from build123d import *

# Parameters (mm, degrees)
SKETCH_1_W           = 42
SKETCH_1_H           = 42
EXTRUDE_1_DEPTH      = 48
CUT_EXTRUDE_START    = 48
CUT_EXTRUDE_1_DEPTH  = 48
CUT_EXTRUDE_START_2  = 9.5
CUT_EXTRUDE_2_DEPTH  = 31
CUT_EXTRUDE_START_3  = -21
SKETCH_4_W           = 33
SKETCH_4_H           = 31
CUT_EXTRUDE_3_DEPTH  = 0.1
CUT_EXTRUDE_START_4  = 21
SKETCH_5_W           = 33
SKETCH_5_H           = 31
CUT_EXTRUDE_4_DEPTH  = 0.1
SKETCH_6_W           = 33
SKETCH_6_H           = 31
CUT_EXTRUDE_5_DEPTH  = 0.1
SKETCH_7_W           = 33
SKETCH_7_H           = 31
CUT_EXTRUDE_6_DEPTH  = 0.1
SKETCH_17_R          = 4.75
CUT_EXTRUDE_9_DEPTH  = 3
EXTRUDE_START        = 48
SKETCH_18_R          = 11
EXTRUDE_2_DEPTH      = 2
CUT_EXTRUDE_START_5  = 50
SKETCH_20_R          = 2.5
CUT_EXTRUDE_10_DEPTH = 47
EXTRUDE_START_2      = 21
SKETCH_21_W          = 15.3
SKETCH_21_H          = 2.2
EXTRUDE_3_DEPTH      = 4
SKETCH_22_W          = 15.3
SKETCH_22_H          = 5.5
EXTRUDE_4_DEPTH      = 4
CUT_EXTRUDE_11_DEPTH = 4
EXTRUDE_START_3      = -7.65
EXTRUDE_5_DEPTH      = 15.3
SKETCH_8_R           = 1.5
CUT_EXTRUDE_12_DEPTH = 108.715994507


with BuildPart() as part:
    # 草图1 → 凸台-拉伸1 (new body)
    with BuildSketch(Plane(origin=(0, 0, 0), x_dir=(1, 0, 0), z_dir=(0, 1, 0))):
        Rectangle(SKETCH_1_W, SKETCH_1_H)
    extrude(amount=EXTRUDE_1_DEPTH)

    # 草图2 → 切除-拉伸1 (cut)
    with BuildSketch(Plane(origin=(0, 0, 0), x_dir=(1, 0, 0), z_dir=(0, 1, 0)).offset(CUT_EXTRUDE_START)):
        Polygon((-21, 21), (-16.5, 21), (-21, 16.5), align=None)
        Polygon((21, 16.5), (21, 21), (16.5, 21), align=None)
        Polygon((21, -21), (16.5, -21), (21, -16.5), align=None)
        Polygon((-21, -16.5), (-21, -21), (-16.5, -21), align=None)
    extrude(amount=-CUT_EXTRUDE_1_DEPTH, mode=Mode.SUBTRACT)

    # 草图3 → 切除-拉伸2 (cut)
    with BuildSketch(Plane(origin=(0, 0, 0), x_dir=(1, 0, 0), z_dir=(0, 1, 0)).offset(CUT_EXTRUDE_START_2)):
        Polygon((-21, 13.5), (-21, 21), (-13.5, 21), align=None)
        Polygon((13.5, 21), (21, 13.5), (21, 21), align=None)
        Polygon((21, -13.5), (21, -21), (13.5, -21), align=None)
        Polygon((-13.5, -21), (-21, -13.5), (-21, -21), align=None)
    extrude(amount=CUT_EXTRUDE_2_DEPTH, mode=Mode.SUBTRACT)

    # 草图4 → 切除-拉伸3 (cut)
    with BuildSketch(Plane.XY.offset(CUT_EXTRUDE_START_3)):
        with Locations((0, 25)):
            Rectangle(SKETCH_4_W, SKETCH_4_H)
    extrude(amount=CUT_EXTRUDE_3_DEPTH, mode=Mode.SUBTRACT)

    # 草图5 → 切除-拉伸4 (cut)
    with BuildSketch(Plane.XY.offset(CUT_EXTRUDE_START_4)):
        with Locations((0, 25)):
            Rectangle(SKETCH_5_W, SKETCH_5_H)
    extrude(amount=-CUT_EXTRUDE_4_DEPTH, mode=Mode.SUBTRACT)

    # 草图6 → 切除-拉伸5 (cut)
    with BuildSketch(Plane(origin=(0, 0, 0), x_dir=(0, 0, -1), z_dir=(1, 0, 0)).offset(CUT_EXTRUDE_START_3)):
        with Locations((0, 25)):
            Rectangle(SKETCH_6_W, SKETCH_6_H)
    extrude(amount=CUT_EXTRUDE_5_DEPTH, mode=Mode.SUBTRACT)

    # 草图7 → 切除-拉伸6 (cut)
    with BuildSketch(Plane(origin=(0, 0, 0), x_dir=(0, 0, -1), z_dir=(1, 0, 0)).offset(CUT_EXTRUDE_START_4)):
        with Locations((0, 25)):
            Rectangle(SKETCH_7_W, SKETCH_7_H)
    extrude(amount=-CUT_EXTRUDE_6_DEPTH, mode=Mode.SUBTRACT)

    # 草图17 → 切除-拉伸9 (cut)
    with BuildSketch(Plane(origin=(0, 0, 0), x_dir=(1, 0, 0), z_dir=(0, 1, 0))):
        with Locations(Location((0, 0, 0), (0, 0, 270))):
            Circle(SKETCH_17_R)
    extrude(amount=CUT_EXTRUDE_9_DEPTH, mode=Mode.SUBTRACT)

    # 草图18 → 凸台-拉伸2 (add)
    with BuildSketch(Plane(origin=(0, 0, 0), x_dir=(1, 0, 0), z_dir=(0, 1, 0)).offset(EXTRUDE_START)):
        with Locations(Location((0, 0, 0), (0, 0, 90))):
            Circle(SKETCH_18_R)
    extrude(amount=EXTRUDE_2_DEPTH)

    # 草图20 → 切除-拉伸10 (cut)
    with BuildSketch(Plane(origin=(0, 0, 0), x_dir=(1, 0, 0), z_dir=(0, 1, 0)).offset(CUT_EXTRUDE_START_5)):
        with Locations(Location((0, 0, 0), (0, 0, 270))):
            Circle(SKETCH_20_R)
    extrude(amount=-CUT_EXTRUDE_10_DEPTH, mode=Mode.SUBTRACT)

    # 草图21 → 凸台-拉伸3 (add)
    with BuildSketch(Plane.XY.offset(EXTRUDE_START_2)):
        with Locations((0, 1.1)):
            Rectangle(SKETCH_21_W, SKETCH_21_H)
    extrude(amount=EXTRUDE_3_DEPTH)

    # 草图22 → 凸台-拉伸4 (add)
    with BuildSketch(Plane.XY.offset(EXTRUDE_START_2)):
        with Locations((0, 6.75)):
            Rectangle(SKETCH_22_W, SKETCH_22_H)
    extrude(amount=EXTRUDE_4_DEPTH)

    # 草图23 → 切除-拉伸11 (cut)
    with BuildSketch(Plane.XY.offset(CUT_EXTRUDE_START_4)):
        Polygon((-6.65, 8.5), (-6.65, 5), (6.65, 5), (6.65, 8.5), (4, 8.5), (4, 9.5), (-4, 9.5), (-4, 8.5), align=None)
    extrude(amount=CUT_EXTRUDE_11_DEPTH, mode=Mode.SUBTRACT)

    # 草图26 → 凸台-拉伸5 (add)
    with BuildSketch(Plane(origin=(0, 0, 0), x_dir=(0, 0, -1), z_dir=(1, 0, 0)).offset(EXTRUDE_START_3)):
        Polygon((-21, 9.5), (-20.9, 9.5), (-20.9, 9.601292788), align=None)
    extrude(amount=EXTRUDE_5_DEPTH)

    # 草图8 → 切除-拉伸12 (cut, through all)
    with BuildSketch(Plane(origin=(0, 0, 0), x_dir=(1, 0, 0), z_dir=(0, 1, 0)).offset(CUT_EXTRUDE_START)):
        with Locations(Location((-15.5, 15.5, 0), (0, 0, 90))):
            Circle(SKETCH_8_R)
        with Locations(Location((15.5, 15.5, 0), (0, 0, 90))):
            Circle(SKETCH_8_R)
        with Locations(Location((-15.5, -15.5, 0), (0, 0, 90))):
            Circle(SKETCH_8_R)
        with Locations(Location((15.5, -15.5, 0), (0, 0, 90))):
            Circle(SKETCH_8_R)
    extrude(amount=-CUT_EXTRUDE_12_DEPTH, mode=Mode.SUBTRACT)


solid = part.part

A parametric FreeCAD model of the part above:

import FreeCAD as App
import Part
import Sketcher

V = App.Vector
Q = App.Units.Quantity


def add_polygon(sketch, points):
    """Adds a closed chain of lines whose ends are joined by coincident constraints."""
    first, n = sketch.GeometryCount, len(points)
    for a, b in zip(points, points[1:] + points[:1]):
        sketch.addGeometry(Part.LineSegment(App.Vector(*a, 0), App.Vector(*b, 0)), False)
    for i in range(n):
        sketch.addConstraint(Sketcher.Constraint("Coincident", first + i, 2, first + (i + 1) % n, 1))

doc = App.newDocument("Part")
params = doc.addObject("Spreadsheet::Sheet", "Params")
for row, (alias, value) in enumerate([
    ("sketch1_width", "42 mm"),
    ("pad1_length", "48 mm"),
    ("sketch2_width", "4.5 mm"),
    ("pocket1_length", "48 mm"),
    ("sketch3_width", "7.5 mm"),
    ("pocket2_length", "31 mm"),
    ("sketch4_width", "33 mm"),
    ("sketch4_height", "31 mm"),
    ("pocket3_length", "0.1 mm"),
    ("sketch5_width", "33 mm"),
    ("sketch5_height", "31 mm"),
    ("pocket4_length", "0.1 mm"),
    ("sketch6_width", "31 mm"),
    ("sketch6_height", "33 mm"),
    ("pocket5_length", "0.1 mm"),
    ("sketch7_width", "31 mm"),
    ("sketch7_height", "33 mm"),
    ("pocket6_length", "0.1 mm"),
    ("sketch8_diameter", "9.5 mm"),
    ("pocket7_length", "3 mm"),
    ("sketch9_diameter", "22 mm"),
    ("pad2_length", "2 mm"),
    ("sketch10_diameter", "5 mm"),
    ("pocket8_length", "47 mm"),
    ("sketch11_width", "15.3 mm"),
    ("sketch11_height", "2.2 mm"),
    ("pad3_length", "4 mm"),
    ("sketch12_width", "15.3 mm"),
    ("sketch12_height", "5.5 mm"),
    ("pad4_length", "4 mm"),
    ("sketch13_width", "8 mm"),
    ("sketch13_height", "1 mm"),
    ("sketch13_width2", "13.3 mm"),
    ("sketch13_height2", "3.5 mm"),
    ("pocket9_length", "4 mm"),
    ("sketch14_height", "0.1 mm"),
    ("pad5_length", "15.3 mm"),
    ("sketch15_diameter", "3 mm"),
], start=1):
    params.set(f"A{row}", alias)
    params.set(f"B{row}", "=" + value)
    params.setAlias(f"B{row}", alias)

body = doc.addObject("PartDesign::Body", "Body")

sketch1 = body.newObject("Sketcher::SketchObject", "Sketch")
sketch1.AttachmentSupport = (doc.getObject("XZ_Plane"), [""])
sketch1.MapMode = "FlatFace"
add_polygon(sketch1, [(-21, -21), (-21, 21), (21, 21), (21, -21)])
sketch1.addConstraint(Sketcher.Constraint("Vertical", 0))
sketch1.addConstraint(Sketcher.Constraint("Horizontal", 1))
sketch1.addConstraint(Sketcher.Constraint("Vertical", 2))
sketch1.addConstraint(Sketcher.Constraint("Horizontal", 3))
sketch1.addConstraint(Sketcher.Constraint("Symmetric", 0, 2, 2, 2, -1, 1))
sketch1.addConstraint(Sketcher.Constraint("Equal", 3, 0))
sketch1.addConstraint(Sketcher.Constraint("DistanceX", 1, 1, 1, 2, Q("42 mm")))
sketch1.setExpression("Constraints[10]", "Params.sketch1_width")
pad1 = body.newObject("PartDesign::Pad", "Pad")
pad1.Profile = sketch1
pad1.setExpression("Length", "Params.pad1_length")
pad1.Reversed = True

sketch2 = body.newObject("Sketcher::SketchObject", "Sketch001")
sketch2.AttachmentSupport = (doc.getObject("XZ_Plane"), [""])
sketch2.MapMode = "FlatFace"
sketch2.AttachmentOffset = App.Placement(V(0, 0, -48), App.Rotation())
add_polygon(sketch2, [(-16.5, -21), (-21, -21), (-21, -16.5)])
add_polygon(sketch2, [(21, -16.5), (21, -21), (16.5, -21)])
add_polygon(sketch2, [(16.5, 21), (21, 21), (21, 16.5)])
add_polygon(sketch2, [(-21, 16.5), (-21, 21), (-16.5, 21)])
sketch2.addConstraint(Sketcher.Constraint("Horizontal", 0))
sketch2.addConstraint(Sketcher.Constraint("Vertical", 1))
sketch2.addConstraint(Sketcher.Constraint("Vertical", 3))
sketch2.addConstraint(Sketcher.Constraint("Horizontal", 4))
sketch2.addConstraint(Sketcher.Constraint("Horizontal", 6))
sketch2.addConstraint(Sketcher.Constraint("Vertical", 7))
sketch2.addConstraint(Sketcher.Constraint("Vertical", 9))
sketch2.addConstraint(Sketcher.Constraint("Horizontal", 10))
sketch2.addConstraint(Sketcher.Constraint("Symmetric", 0, 2, 6, 2, -1, 1))
sketch2.addConstraint(Sketcher.Constraint("Symmetric", 3, 2, 9, 2, -1, 1))
sketch2.addConstraint(Sketcher.Constraint("Symmetric", 0, 2, 3, 2, -2))
sketch2.addConstraint(Sketcher.Constraint("Perpendicular", 2, 5))
sketch2.addConstraint(Sketcher.Constraint("Perpendicular", 5, 8))
sketch2.addConstraint(Sketcher.Constraint("Perpendicular", 8, 11))
sketch2.addConstraint(Sketcher.Constraint("Horizontal", 1, 2, 5, 2))
sketch2.addConstraint(Sketcher.Constraint("Horizontal", 7, 2, 11, 2))
sketch2.addConstraint(Sketcher.Constraint("Vertical", 4, 2, 8, 2))
sketch2.addConstraint(Sketcher.Constraint("Vertical", 2, 2, 10, 2))
sketch2.addConstraint(Sketcher.Constraint("DistanceX", 0, 2, 0, 1, Q("4.5 mm")))
sketch2.addConstraint(Sketcher.Constraint("DistanceX", 0, 2, -1, 1, Q("21 mm")))
sketch2.addConstraint(Sketcher.Constraint("DistanceY", 0, 2, -1, 1, Q("21 mm")))
sketch2.setExpression("Constraints[30]", "Params.sketch2_width")
pocket1 = body.newObject("PartDesign::Pocket", "Pocket")
pocket1.Profile = sketch2
pocket1.setExpression("Length", "Params.pocket1_length")
pocket1.Reversed = True

sketch3 = body.newObject("Sketcher::SketchObject", "Sketch002")
sketch3.AttachmentSupport = (doc.getObject("XZ_Plane"), [""])
sketch3.MapMode = "FlatFace"
sketch3.AttachmentOffset = App.Placement(V(0, 0, -9.5), App.Rotation())
add_polygon(sketch3, [(-21, -21), (-21, -14), (-14, -21)])
add_polygon(sketch3, [(14, -21), (21, -14), (21, -21)])
add_polygon(sketch3, [(21, 21), (21, 14), (14, 21)])
add_polygon(sketch3, [(-14, 21), (-21, 14), (-21, 21)])
sketch3.addConstraint(Sketcher.Constraint("Vertical", 0))
sketch3.addConstraint(Sketcher.Constraint("Horizontal", 2))
sketch3.addConstraint(Sketcher.Constraint("Vertical", 4))
sketch3.addConstraint(Sketcher.Constraint("Horizontal", 5))
sketch3.addConstraint(Sketcher.Constraint("Vertical", 6))
sketch3.addConstraint(Sketcher.Constraint("Horizontal", 8))
sketch3.addConstraint(Sketcher.Constraint("Vertical", 10))
sketch3.addConstraint(Sketcher.Constraint("Horizontal", 11))
sketch3.addConstraint(Sketcher.Constraint("Symmetric", 0, 2, 6, 2, -1, 1))
sketch3.addConstraint(Sketcher.Constraint("Symmetric", 1, 2, 7, 2, -1, 1))
sketch3.addConstraint(Sketcher.Constraint("Symmetric", 3, 2, 9, 2, -1, 1))
sketch3.addConstraint(Sketcher.Constraint("Symmetric", 5, 2, 11, 2, -1, 1))
sketch3.addConstraint(Sketcher.Constraint("Symmetric", 0, 2, 3, 2, -2))
sketch3.addConstraint(Sketcher.Constraint("Symmetric", 1, 2, 5, 2, -2))
sketch3.addConstraint(Sketcher.Constraint("Perpendicular", 1, 3))
sketch3.addConstraint(Sketcher.Constraint("DistanceX", 2, 2, 2, 1, Q("7.5 mm")))
sketch3.addConstraint(Sketcher.Constraint("DistanceX", 0, 2, -1, 1, Q("21 mm")))
sketch3.addConstraint(Sketcher.Constraint("DistanceY", 1, 2, -1, 1, Q("21 mm")))
sketch3.setExpression("Constraints[27]", "Params.sketch3_width")
pocket2 = body.newObject("PartDesign::Pocket", "Pocket001")
pocket2.Profile = sketch3
pocket2.setExpression("Length", "Params.pocket2_length")

sketch4 = body.newObject("Sketcher::SketchObject", "Sketch003")
sketch4.AttachmentSupport = (doc.getObject("XY_Plane"), [""])
sketch4.MapMode = "FlatFace"
sketch4.AttachmentOffset = App.Placement(V(0, 0, -21), App.Rotation())
add_polygon(sketch4, [(-16, 40), (-16, 10), (16, 10), (16, 40)])
sketch4.addConstraint(Sketcher.Constraint("Vertical", 0))
sketch4.addConstraint(Sketcher.Constraint("Horizontal", 1))
sketch4.addConstraint(Sketcher.Constraint("Vertical", 2))
sketch4.addConstraint(Sketcher.Constraint("Horizontal", 3))
sketch4.addConstraint(Sketcher.Constraint("DistanceX", 1, 1, 1, 2, Q("33 mm")))
sketch4.addConstraint(Sketcher.Constraint("DistanceY", 0, 2, 0, 1, Q("31 mm")))
sketch4.addConstraint(Sketcher.Constraint("DistanceX", 0, 2, -1, 1, Q("16.5 mm")))
sketch4.addConstraint(Sketcher.Constraint("DistanceY", -1, 1, 0, 2, Q("9.5 mm")))
sketch4.setExpression("Constraints[8]", "Params.sketch4_width")
sketch4.setExpression("Constraints[9]", "Params.sketch4_height")
pocket3 = body.newObject("PartDesign::Pocket", "Pocket002")
pocket3.Profile = sketch4
pocket3.setExpression("Length", "Params.pocket3_length")
pocket3.Reversed = True

sketch5 = body.newObject("Sketcher::SketchObject", "Sketch004")
sketch5.AttachmentSupport = (doc.getObject("XY_Plane"), [""])
sketch5.MapMode = "FlatFace"
sketch5.AttachmentOffset = App.Placement(V(0, 0, 21), App.Rotation())
add_polygon(sketch5, [(-16, 40), (-16, 10), (16, 10), (16, 40)])
sketch5.addConstraint(Sketcher.Constraint("Vertical", 0))
sketch5.addConstraint(Sketcher.Constraint("Horizontal", 1))
sketch5.addConstraint(Sketcher.Constraint("Vertical", 2))
sketch5.addConstraint(Sketcher.Constraint("Horizontal", 3))
sketch5.addConstraint(Sketcher.Constraint("DistanceX", 1, 1, 1, 2, Q("33 mm")))
sketch5.addConstraint(Sketcher.Constraint("DistanceY", 0, 2, 0, 1, Q("31 mm")))
sketch5.addConstraint(Sketcher.Constraint("DistanceX", 0, 2, -1, 1, Q("16.5 mm")))
sketch5.addConstraint(Sketcher.Constraint("DistanceY", -1, 1, 0, 2, Q("9.5 mm")))
sketch5.setExpression("Constraints[8]", "Params.sketch5_width")
sketch5.setExpression("Constraints[9]", "Params.sketch5_height")
pocket4 = body.newObject("PartDesign::Pocket", "Pocket003")
pocket4.Profile = sketch5
pocket4.setExpression("Length", "Params.pocket4_length")

sketch6 = body.newObject("Sketcher::SketchObject", "Sketch005")
sketch6.AttachmentSupport = (doc.getObject("YZ_Plane"), [""])
sketch6.MapMode = "FlatFace"
sketch6.AttachmentOffset = App.Placement(V(0, 0, -21), App.Rotation())
add_polygon(sketch6, [(40, 16), (10, 16), (10, -16), (40, -16)])
sketch6.addConstraint(Sketcher.Constraint("Horizontal", 0))
sketch6.addConstraint(Sketcher.Constraint("Vertical", 1))
sketch6.addConstraint(Sketcher.Constraint("Horizontal", 2))
sketch6.addConstraint(Sketcher.Constraint("Vertical", 3))
sketch6.addConstraint(Sketcher.Constraint("DistanceX", 0, 2, 0, 1, Q("31 mm")))
sketch6.addConstraint(Sketcher.Constraint("DistanceY", 1, 2, 1, 1, Q("33 mm")))
sketch6.addConstraint(Sketcher.Constraint("DistanceX", -1, 1, 0, 2, Q("9.5 mm")))
sketch6.addConstraint(Sketcher.Constraint("DistanceY", -1, 1, 0, 2, Q("16.5 mm")))
sketch6.setExpression("Constraints[8]", "Params.sketch6_width")
sketch6.setExpression("Constraints[9]", "Params.sketch6_height")
pocket5 = body.newObject("PartDesign::Pocket", "Pocket004")
pocket5.Profile = sketch6
pocket5.setExpression("Length", "Params.pocket5_length")
pocket5.Reversed = True

sketch7 = body.newObject("Sketcher::SketchObject", "Sketch006")
sketch7.AttachmentSupport = (doc.getObject("YZ_Plane"), [""])
sketch7.MapMode = "FlatFace"
sketch7.AttachmentOffset = App.Placement(V(0, 0, 21), App.Rotation())
add_polygon(sketch7, [(40, 16), (10, 16), (10, -16), (40, -16)])
sketch7.addConstraint(Sketcher.Constraint("Horizontal", 0))
sketch7.addConstraint(Sketcher.Constraint("Vertical", 1))
sketch7.addConstraint(Sketcher.Constraint("Horizontal", 2))
sketch7.addConstraint(Sketcher.Constraint("Vertical", 3))
sketch7.addConstraint(Sketcher.Constraint("DistanceX", 0, 2, 0, 1, Q("31 mm")))
sketch7.addConstraint(Sketcher.Constraint("DistanceY", 1, 2, 1, 1, Q("33 mm")))
sketch7.addConstraint(Sketcher.Constraint("DistanceX", -1, 1, 0, 2, Q("9.5 mm")))
sketch7.addConstraint(Sketcher.Constraint("DistanceY", -1, 1, 0, 2, Q("16.5 mm")))
sketch7.setExpression("Constraints[8]", "Params.sketch7_width")
sketch7.setExpression("Constraints[9]", "Params.sketch7_height")
pocket6 = body.newObject("PartDesign::Pocket", "Pocket005")
pocket6.Profile = sketch7
pocket6.setExpression("Length", "Params.pocket6_length")

sketch8 = body.newObject("Sketcher::SketchObject", "Sketch007")
sketch8.AttachmentSupport = (doc.getObject("XZ_Plane"), [""])
sketch8.MapMode = "FlatFace"
sketch8.addGeometry(Part.Circle(V(0, 0, 0), V(0, 0, 1), 4.8), False)
sketch8.addConstraint(Sketcher.Constraint("Coincident", 0, 3, -1, 1))
sketch8.addConstraint(Sketcher.Constraint("Diameter", 0, Q("9.5 mm")))
sketch8.setExpression("Constraints[1]", "Params.sketch8_diameter")
pocket7 = body.newObject("PartDesign::Pocket", "Pocket006")
pocket7.Profile = sketch8
pocket7.setExpression("Length", "Params.pocket7_length")

sketch9 = body.newObject("Sketcher::SketchObject", "Sketch008")
sketch9.AttachmentSupport = (doc.getObject("XZ_Plane"), [""])
sketch9.MapMode = "FlatFace"
sketch9.AttachmentOffset = App.Placement(V(0, 0, -48), App.Rotation())
sketch9.addGeometry(Part.Circle(V(0, 0, 0), V(0, 0, 1), 11), False)
sketch9.addConstraint(Sketcher.Constraint("Coincident", 0, 3, -1, 1))
sketch9.addConstraint(Sketcher.Constraint("Diameter", 0, Q("22 mm")))
sketch9.setExpression("Constraints[1]", "Params.sketch9_diameter")
pad2 = body.newObject("PartDesign::Pad", "Pad001")
pad2.Profile = sketch9
pad2.setExpression("Length", "Params.pad2_length")
pad2.Reversed = True

sketch10 = body.newObject("Sketcher::SketchObject", "Sketch009")
sketch10.AttachmentSupport = (doc.getObject("XZ_Plane"), [""])
sketch10.MapMode = "FlatFace"
sketch10.AttachmentOffset = App.Placement(V(0, 0, -50), App.Rotation())
sketch10.addGeometry(Part.Circle(V(0, 0, 0), V(0, 0, 1), 2.5), False)
sketch10.addConstraint(Sketcher.Constraint("Coincident", 0, 3, -1, 1))
sketch10.addConstraint(Sketcher.Constraint("Diameter", 0, Q("5 mm")))
sketch10.setExpression("Constraints[1]", "Params.sketch10_diameter")
pocket8 = body.newObject("PartDesign::Pocket", "Pocket007")
pocket8.Profile = sketch10
pocket8.setExpression("Length", "Params.pocket8_length")
pocket8.Reversed = True

sketch11 = body.newObject("Sketcher::SketchObject", "Sketch010")
sketch11.AttachmentSupport = (doc.getObject("XY_Plane"), [""])
sketch11.MapMode = "FlatFace"
sketch11.AttachmentOffset = App.Placement(V(0, 0, 21), App.Rotation())
add_polygon(sketch11, [(-7.7, 2.2), (-7.7, 0), (7.7, 0), (7.7, 2.2)])
sketch11.addConstraint(Sketcher.Constraint("Vertical", 0))
sketch11.addConstraint(Sketcher.Constraint("Horizontal", 1))
sketch11.addConstraint(Sketcher.Constraint("Vertical", 2))
sketch11.addConstraint(Sketcher.Constraint("Horizontal", 3))
sketch11.addConstraint(Sketcher.Constraint("Symmetric", 0, 2, 1, 2, -1, 1))
sketch11.addConstraint(Sketcher.Constraint("DistanceX", 1, 1, 1, 2, Q("15.3 mm")))
sketch11.addConstraint(Sketcher.Constraint("DistanceY", 0, 2, 0, 1, Q("2.2 mm")))
sketch11.setExpression("Constraints[9]", "Params.sketch11_width")
sketch11.setExpression("Constraints[10]", "Params.sketch11_height")
pad3 = body.newObject("PartDesign::Pad", "Pad002")
pad3.Profile = sketch11
pad3.setExpression("Length", "Params.pad3_length")

sketch12 = body.newObject("Sketcher::SketchObject", "Sketch011")
sketch12.AttachmentSupport = (doc.getObject("XY_Plane"), [""])
sketch12.MapMode = "FlatFace"
sketch12.AttachmentOffset = App.Placement(V(0, 0, 21), App.Rotation())
add_polygon(sketch12, [(-8, 10), (-8, 4), (8, 4), (8, 10)])
sketch12.addConstraint(Sketcher.Constraint("Vertical", 0))
sketch12.addConstraint(Sketcher.Constraint("Horizontal", 1))
sketch12.addConstraint(Sketcher.Constraint("Vertical", 2))
sketch12.addConstraint(Sketcher.Constraint("Horizontal", 3))
sketch12.addConstraint(Sketcher.Constraint("DistanceX", 1, 1, 1, 2, Q("15.3 mm")))
sketch12.addConstraint(Sketcher.Constraint("DistanceY", 0, 2, 0, 1, Q("5.5 mm")))
sketch12.addConstraint(Sketcher.Constraint("DistanceY", -1, 1, 0, 2, Q("4 mm")))
sketch12.addConstraint(Sketcher.Constraint("DistanceX", 0, 2, -1, 1, Q("7.65 mm")))
sketch12.setExpression("Constraints[8]", "Params.sketch12_width")
sketch12.setExpression("Constraints[9]", "Params.sketch12_height")
pad4 = body.newObject("PartDesign::Pad", "Pad003")
pad4.Profile = sketch12
pad4.setExpression("Length", "Params.pad4_length")

sketch13 = body.newObject("Sketcher::SketchObject", "Sketch012")
sketch13.AttachmentSupport = (doc.getObject("XY_Plane"), [""])
sketch13.MapMode = "FlatFace"
sketch13.AttachmentOffset = App.Placement(V(0, 0, 21), App.Rotation())
add_polygon(sketch13, [(-6.7, 8.5), (-6.7, 5), (6.7, 5), (6.7, 8.5), (4, 8.5), (4, 9.5), (-4, 9.5), (-4, 8.5)])
sketch13.addConstraint(Sketcher.Constraint("Vertical", 0))
sketch13.addConstraint(Sketcher.Constraint("Horizontal", 1))
sketch13.addConstraint(Sketcher.Constraint("Vertical", 2))
sketch13.addConstraint(Sketcher.Constraint("Horizontal", 3))
sketch13.addConstraint(Sketcher.Constraint("Vertical", 4))
sketch13.addConstraint(Sketcher.Constraint("Horizontal", 5))
sketch13.addConstraint(Sketcher.Constraint("Vertical", 6))
sketch13.addConstraint(Sketcher.Constraint("Horizontal", 7))
sketch13.addConstraint(Sketcher.Constraint("Symmetric", 3, 2, 6, 2, -2))
sketch13.addConstraint(Sketcher.Constraint("Equal", 3, 7))
sketch13.addConstraint(Sketcher.Constraint("DistanceX", 5, 2, 5, 1, Q("8 mm")))
sketch13.addConstraint(Sketcher.Constraint("DistanceY", 4, 1, 4, 2, Q("1 mm")))
sketch13.addConstraint(Sketcher.Constraint("DistanceX", 1, 1, 1, 2, Q("13.3 mm")))
sketch13.addConstraint(Sketcher.Constraint("DistanceY", 0, 2, 0, 1, Q("3.5 mm")))
sketch13.addConstraint(Sketcher.Constraint("DistanceY", -1, 1, 0, 2, Q("5 mm")))
sketch13.setExpression("Constraints[18]", "Params.sketch13_width")
sketch13.setExpression("Constraints[19]", "Params.sketch13_height")
sketch13.setExpression("Constraints[20]", "Params.sketch13_width2")
sketch13.setExpression("Constraints[21]", "Params.sketch13_height2")
pocket9 = body.newObject("PartDesign::Pocket", "Pocket008")
pocket9.Profile = sketch13
pocket9.setExpression("Length", "Params.pocket9_length")
pocket9.Reversed = True

sketch14 = body.newObject("Sketcher::SketchObject", "Sketch013")
sketch14.AttachmentSupport = (doc.getObject("YZ_Plane"), [""])
sketch14.MapMode = "FlatFace"
sketch14.AttachmentOffset = App.Placement(V(0, 0, -7.65), App.Rotation())
add_polygon(sketch14, [(9.5, 21), (9.5, 20.9), (9.6, 20.9)])
sketch14.addConstraint(Sketcher.Constraint("Vertical", 0))
sketch14.addConstraint(Sketcher.Constraint("Horizontal", 1))
sketch14.addConstraint(Sketcher.Constraint("DistanceY", 0, 2, 0, 1, Q("0.1 mm")))
sketch14.addConstraint(Sketcher.Constraint("DistanceY", -1, 1, 2, 2, Q("21 mm")))
sketch14.addConstraint(Sketcher.Constraint("DistanceX", -1, 1, 0, 2, Q("9.5 mm")))
sketch14.addConstraint(Sketcher.Constraint("Distance", 2, Q("0.142338 mm")))
sketch14.setExpression("Constraints[5]", "Params.sketch14_height")
pad5 = body.newObject("PartDesign::Pad", "Pad004")
pad5.Profile = sketch14
pad5.setExpression("Length", "Params.pad5_length")

sketch15 = body.newObject("Sketcher::SketchObject", "Sketch014")
sketch15.AttachmentSupport = (doc.getObject("XZ_Plane"), [""])
sketch15.MapMode = "FlatFace"
sketch15.AttachmentOffset = App.Placement(V(0, 0, -48), App.Rotation())
sketch15.addGeometry(Part.Circle(V(-15.5, -15.5, 0), V(0, 0, 1), 1.5), False)
sketch15.addGeometry(Part.Circle(V(15.5, -15.5, 0), V(0, 0, 1), 1.5), False)
sketch15.addGeometry(Part.Circle(V(-15.5, 15.5, 0), V(0, 0, 1), 1.5), False)
sketch15.addGeometry(Part.Circle(V(15.5, 15.5, 0), V(0, 0, 1), 1.5), False)
sketch15.addConstraint(Sketcher.Constraint("Equal", 0, 1))
sketch15.addConstraint(Sketcher.Constraint("Equal", 1, 2))
sketch15.addConstraint(Sketcher.Constraint("Equal", 2, 3))
sketch15.addConstraint(Sketcher.Constraint("Symmetric", 1, 3, 2, 3, -1, 1))
sketch15.addConstraint(Sketcher.Constraint("Symmetric", 0, 3, 3, 3, -1, 1))
sketch15.addConstraint(Sketcher.Constraint("Symmetric", 0, 3, 1, 3, -2))
sketch15.addConstraint(Sketcher.Constraint("Diameter", 0, Q("3 mm")))
sketch15.addConstraint(Sketcher.Constraint("DistanceX", 0, 3, 1, 3, Q("31 mm")))
sketch15.addConstraint(Sketcher.Constraint("DistanceY", 0, 3, 2, 3, Q("31 mm")))
sketch15.setExpression("Constraints[6]", "Params.sketch15_diameter")
pocket10 = body.newObject("PartDesign::Pocket", "Pocket009")
pocket10.Profile = sketch15
pocket10.Type = "ThroughAll"
pocket10.Reversed = True

doc.recompute()
